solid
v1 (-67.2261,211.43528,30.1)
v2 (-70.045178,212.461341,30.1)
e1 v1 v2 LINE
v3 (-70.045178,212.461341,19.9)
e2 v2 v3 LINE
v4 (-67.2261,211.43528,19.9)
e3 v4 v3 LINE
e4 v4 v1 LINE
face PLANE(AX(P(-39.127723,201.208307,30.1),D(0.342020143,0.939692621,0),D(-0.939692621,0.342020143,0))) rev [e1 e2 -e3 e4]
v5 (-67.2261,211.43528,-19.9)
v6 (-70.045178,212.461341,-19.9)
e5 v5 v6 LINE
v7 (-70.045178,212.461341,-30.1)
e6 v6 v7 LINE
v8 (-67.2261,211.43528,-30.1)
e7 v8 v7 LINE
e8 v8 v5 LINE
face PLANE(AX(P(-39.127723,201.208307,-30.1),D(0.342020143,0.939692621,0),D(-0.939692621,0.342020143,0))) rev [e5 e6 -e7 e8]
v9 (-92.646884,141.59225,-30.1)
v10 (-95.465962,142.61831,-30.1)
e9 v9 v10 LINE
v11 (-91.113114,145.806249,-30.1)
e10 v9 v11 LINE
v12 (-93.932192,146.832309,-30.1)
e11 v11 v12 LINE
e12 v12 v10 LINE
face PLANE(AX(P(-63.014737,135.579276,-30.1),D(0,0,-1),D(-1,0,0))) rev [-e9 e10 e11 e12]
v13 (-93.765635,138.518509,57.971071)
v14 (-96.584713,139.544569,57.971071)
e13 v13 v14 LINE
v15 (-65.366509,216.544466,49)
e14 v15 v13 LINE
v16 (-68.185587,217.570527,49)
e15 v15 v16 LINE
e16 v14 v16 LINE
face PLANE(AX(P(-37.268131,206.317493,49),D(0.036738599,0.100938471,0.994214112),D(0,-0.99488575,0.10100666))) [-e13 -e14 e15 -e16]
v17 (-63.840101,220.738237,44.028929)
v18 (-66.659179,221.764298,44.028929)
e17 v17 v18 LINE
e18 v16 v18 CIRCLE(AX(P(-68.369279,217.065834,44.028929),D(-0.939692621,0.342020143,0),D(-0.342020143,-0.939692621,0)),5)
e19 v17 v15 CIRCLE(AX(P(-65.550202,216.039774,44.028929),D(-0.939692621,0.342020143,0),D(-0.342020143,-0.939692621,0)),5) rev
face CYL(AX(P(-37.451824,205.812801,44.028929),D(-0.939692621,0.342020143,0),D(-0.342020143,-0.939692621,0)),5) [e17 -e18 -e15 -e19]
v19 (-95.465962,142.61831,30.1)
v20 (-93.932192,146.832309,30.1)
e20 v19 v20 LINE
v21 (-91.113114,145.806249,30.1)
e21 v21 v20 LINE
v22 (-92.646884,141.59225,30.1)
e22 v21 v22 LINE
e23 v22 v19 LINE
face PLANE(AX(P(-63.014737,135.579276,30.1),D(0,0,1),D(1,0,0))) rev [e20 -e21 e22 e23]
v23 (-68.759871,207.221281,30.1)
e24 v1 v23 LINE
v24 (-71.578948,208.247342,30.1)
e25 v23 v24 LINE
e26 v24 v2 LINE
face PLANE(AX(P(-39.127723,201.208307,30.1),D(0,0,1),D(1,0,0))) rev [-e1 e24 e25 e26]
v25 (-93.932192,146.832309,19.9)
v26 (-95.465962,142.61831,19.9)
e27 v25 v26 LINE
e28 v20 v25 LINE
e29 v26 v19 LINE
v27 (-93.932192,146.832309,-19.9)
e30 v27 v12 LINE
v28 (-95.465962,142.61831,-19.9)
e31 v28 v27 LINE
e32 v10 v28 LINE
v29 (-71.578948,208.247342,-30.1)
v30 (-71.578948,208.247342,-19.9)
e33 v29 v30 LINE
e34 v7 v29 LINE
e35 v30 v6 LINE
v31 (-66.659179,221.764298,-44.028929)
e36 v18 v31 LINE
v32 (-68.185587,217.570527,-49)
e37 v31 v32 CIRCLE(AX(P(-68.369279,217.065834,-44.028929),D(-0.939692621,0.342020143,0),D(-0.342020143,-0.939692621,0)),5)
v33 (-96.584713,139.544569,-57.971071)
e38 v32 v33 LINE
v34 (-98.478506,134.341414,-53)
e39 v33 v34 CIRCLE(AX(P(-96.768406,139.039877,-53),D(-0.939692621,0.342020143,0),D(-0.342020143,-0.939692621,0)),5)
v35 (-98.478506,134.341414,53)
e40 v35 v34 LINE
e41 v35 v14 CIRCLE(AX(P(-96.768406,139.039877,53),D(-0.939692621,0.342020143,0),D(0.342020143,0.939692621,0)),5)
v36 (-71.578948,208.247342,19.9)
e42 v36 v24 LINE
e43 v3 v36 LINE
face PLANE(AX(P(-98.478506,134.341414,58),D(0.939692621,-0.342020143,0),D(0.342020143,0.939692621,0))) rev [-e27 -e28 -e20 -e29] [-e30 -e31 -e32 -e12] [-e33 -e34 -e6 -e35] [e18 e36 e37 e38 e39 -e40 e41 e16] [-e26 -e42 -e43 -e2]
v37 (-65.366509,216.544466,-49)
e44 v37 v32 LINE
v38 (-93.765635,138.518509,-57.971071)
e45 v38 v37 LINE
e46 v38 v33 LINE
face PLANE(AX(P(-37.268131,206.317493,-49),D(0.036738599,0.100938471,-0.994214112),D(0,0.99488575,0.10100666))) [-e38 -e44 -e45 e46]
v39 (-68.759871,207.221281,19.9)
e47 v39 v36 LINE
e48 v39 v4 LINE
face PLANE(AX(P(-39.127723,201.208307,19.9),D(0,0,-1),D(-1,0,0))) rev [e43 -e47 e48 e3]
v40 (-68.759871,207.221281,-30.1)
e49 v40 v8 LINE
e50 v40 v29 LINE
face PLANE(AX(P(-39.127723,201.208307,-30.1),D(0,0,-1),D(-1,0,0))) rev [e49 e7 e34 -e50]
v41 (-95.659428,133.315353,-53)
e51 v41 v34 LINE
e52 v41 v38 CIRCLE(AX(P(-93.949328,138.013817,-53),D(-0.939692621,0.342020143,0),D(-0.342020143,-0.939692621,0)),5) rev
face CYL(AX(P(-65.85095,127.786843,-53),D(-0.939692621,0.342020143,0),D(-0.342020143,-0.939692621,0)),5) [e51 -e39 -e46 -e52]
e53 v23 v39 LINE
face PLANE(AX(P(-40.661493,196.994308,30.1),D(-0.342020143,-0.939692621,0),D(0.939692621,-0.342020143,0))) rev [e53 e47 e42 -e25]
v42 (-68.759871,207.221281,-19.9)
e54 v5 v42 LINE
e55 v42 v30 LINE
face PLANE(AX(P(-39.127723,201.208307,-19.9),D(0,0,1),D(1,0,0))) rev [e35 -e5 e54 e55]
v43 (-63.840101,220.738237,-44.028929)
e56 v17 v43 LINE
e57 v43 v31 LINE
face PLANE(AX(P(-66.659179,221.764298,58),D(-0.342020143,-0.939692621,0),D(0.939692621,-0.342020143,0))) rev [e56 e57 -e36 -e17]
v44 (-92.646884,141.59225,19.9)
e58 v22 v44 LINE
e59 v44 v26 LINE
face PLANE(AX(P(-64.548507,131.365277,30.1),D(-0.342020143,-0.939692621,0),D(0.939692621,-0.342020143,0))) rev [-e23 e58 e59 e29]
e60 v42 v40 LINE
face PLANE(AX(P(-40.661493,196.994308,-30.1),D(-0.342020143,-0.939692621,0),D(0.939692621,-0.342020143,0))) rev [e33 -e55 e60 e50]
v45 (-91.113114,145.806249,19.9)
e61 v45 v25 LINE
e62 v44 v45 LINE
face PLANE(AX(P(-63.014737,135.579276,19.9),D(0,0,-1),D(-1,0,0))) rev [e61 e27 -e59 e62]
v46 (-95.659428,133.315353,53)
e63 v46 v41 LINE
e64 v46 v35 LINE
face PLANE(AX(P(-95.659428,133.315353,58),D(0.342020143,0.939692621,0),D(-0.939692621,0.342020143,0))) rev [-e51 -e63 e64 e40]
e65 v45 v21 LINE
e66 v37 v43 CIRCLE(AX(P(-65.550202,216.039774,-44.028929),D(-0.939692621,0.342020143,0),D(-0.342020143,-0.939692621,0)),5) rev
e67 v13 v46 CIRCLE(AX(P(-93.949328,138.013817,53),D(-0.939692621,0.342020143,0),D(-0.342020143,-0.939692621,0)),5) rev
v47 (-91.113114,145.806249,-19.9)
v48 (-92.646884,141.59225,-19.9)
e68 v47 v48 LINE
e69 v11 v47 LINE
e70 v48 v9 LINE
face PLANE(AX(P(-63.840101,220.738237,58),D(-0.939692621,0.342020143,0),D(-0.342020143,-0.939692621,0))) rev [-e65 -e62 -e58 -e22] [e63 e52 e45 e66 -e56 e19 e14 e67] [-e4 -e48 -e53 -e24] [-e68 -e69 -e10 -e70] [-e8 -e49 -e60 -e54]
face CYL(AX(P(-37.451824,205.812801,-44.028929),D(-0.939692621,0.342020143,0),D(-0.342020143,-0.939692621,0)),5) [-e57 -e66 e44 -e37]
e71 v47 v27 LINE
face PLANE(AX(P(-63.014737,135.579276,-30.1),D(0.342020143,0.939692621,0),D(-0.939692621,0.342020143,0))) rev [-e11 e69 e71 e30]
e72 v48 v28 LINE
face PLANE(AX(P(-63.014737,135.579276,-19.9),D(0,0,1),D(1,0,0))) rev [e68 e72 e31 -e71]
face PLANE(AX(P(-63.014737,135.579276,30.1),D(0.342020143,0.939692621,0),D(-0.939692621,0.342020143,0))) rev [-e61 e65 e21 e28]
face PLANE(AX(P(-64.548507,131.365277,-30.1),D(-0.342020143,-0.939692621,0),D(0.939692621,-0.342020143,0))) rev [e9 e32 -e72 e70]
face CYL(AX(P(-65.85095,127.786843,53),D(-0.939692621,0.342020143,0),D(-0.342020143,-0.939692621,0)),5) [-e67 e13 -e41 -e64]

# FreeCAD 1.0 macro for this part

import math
import FreeCAD as App
import Part
import Sketcher

V = App.Vector
Q = App.Units.Quantity


def add_polygon(sketch, points):
    """Adds a closed chain of lines whose ends are joined by coincident constraints."""
    first, n = sketch.GeometryCount, len(points)
    for a, b in zip(points, points[1:] + points[:1]):
        sketch.addGeometry(Part.LineSegment(App.Vector(*a, 0), App.Vector(*b, 0)), False)
    for i in range(n):
        sketch.addConstraint(Sketcher.Constraint("Coincident", first + i, 2, first + (i + 1) % n, 1))

doc = App.newDocument("Part")
body = doc.addObject("PartDesign::Body", "Body")

# Sketch on XY plane
sketch1 = body.newObject("Sketcher::SketchObject", "Sketch")
sketch1.AttachmentSupport = (doc.getObject("XY_Plane"), [""])
sketch1.MapMode = "FlatFace"
add_polygon(sketch1, [(-95.7, 133.3), (-63.8, 220.7), (-66.7, 221.8), (-98.5, 134.3)])  # lines 0-3
sketch1.addConstraint(Sketcher.Constraint("Perpendicular", 0, 1))
sketch1.addConstraint(Sketcher.Constraint("Perpendicular", 1, 2))
sketch1.addConstraint(Sketcher.Constraint("Perpendicular", 2, 3))
sketch1.addConstraint(Sketcher.Constraint("Angle", 0, Q("70 deg")))
sketch1.addConstraint(Sketcher.Constraint("Distance", 1, 3.0))
sketch1.addConstraint(Sketcher.Constraint("DistanceX", 0, 2, -1, 1, 63.840101))
sketch1.addConstraint(Sketcher.Constraint("Distance", 0, 93.03349))
sketch1.addConstraint(Sketcher.Constraint("DistanceY", -1, 1, 0, 2, 220.738237))
pad1 = body.newObject("PartDesign::Pad", "Pad")
pad1.Profile = sketch1
pad1.Length = 116
pad1.Midplane = True

# Sketch on an angled plane
sketch2 = body.newObject("Sketcher::SketchObject", "Sketch001")
sketch2.Placement = App.Placement(V(-130.135208, 47.365342, 0), App.Rotation(V(0, 0, 1), V(0.342020143, 0.939692621, 0), V(-0.939692621, 0.342020143, 0), "ZXY"))
add_polygon(sketch2, [(-74, 202.5), (-74, 75.6), (74, 75.6), (74, 202.5)])  # lines 0-3
sketch2.addGeometry(Part.ArcOfCircle(Part.Circle(V(-44, 180.6, 0), V(0, 0, 1), 5), math.radians(90), math.radians(174)), False)  # 4
sketch2.addGeometry(Part.LineSegment(V(-44, 185.6, 0), V(44, 185.6, 0)), False)  # 5
sketch2.addGeometry(Part.ArcOfCircle(Part.Circle(V(44, 180.6, 0), V(0, 0, 1), 5), math.radians(6), math.radians(90)), False)  # 6
sketch2.addGeometry(Part.LineSegment(V(49, 181.1, 0), V(58, 98.1, 0)), False)  # 7
sketch2.addGeometry(Part.ArcOfCircle(Part.Circle(V(53, 97.6, 0), V(0, 0, 1), 5), math.radians(-90), math.radians(6)), False)  # 8
sketch2.addGeometry(Part.LineSegment(V(53, 92.6, 0), V(-53, 92.6, 0)), False)  # 9
sketch2.addGeometry(Part.ArcOfCircle(Part.Circle(V(-53, 97.6, 0), V(0, 0, 1), 5), math.radians(174), math.radians(270)), False)  # 10
sketch2.addGeometry(Part.LineSegment(V(-58, 98.1, 0), V(-49, 181.1, 0)), False)  # 11
sketch2.addConstraint(Sketcher.Constraint("Tangent", 4, 1, 5, 1))
sketch2.addConstraint(Sketcher.Constraint("Tangent", 5, 2, 6, 2))
sketch2.addConstraint(Sketcher.Constraint("Tangent", 6, 1, 7, 1))
sketch2.addConstraint(Sketcher.Constraint("Tangent", 7, 2, 8, 2))
sketch2.addConstraint(Sketcher.Constraint("Tangent", 8, 1, 9, 1))
sketch2.addConstraint(Sketcher.Constraint("Tangent", 9, 2, 10, 2))
sketch2.addConstraint(Sketcher.Constraint("Tangent", 10, 1, 11, 1))
sketch2.addConstraint(Sketcher.Constraint("Tangent", 11, 2, 4, 2))
sketch2.addConstraint(Sketcher.Constraint("Vertical", 0))
sketch2.addConstraint(Sketcher.Constraint("Horizontal", 1))
sketch2.addConstraint(Sketcher.Constraint("Vertical", 2))
sketch2.addConstraint(Sketcher.Constraint("Horizontal", 3))
sketch2.addConstraint(Sketcher.Constraint("Horizontal", 5))
sketch2.addConstraint(Sketcher.Constraint("Horizontal", 9))
sketch2.addConstraint(Sketcher.Constraint("Equal", 4, 6))
sketch2.addConstraint(Sketcher.Constraint("Equal", 6, 8))
sketch2.addConstraint(Sketcher.Constraint("Equal", 8, 10))
sketch2.addConstraint(Sketcher.Constraint("Symmetric", 7, 2, 10, 1, -2))
sketch2.addConstraint(Sketcher.Constraint("Radius", 4, 5.0))
sketch2.addConstraint(Sketcher.Constraint("DistanceX", 9, 2, 9, 1, 106.0))
sketch2.addConstraint(Sketcher.Constraint("DistanceX", -1, 1, 6, 1, 49.0))
sketch2.addConstraint(Sketcher.Constraint("DistanceX", 1, 1, 1, 2, 147.986))
sketch2.addConstraint(Sketcher.Constraint("DistanceY", 0, 2, 0, 1, 126.948))
sketch2.addConstraint(Sketcher.Constraint("DistanceX", 0, 2, -1, 1, 73.993))
sketch2.addConstraint(Sketcher.Constraint("DistanceY", -1, 1, 0, 2, 75.601))
sketch2.addConstraint(Sketcher.Constraint("DistanceY", 8, 3, 6, 3, 83.03349))
sketch2.addConstraint(Sketcher.Constraint("DistanceY", -1, 1, 4, 3, 180.591492))
pocket1 = body.newObject("PartDesign::Pocket", "Pocket")
pocket1.Profile = sketch2
pocket1.Length = 3

# Sketch on an angled plane
sketch3 = body.newObject("Sketcher::SketchObject", "Sketch002")
sketch3.Placement = App.Placement(V(-130.135208, 47.365342, 0), App.Rotation(V(0, 0, 1), V(0.342020143, 0.939692621, 0), V(-0.939692621, 0.342020143, 0), "ZXY"))
add_polygon(sketch3, [(-30.1, 175.7), (-30.1, 171.2), (-19.9, 171.2), (-19.9, 175.7)])  # lines 0-3
sketch3.addConstraint(Sketcher.Constraint("Vertical", 0))
sketch3.addConstraint(Sketcher.Constraint("Horizontal", 1))
sketch3.addConstraint(Sketcher.Constraint("Vertical", 2))
sketch3.addConstraint(Sketcher.Constraint("Horizontal", 3))
sketch3.addConstraint(Sketcher.Constraint("DistanceX", 1, 1, 1, 2, 10.2))
sketch3.addConstraint(Sketcher.Constraint("DistanceX", 0, 2, -1, 1, 30.1))
sketch3.addConstraint(Sketcher.Constraint("DistanceY", 0, 2, 0, 1, 4.484444))
sketch3.addConstraint(Sketcher.Constraint("DistanceY", -1, 1, 0, 2, 171.207048))
pocket2 = body.newObject("PartDesign::Pocket", "Pocket001")
pocket2.Profile = sketch3
pocket2.Type = "UpToFirst"

# Sketch on an angled plane
sketch4 = body.newObject("Sketcher::SketchObject", "Sketch003")
sketch4.Placement = App.Placement(V(-130.135208, 47.365342, 0), App.Rotation(V(0, 0, 1), V(0.342020143, 0.939692621, 0), V(-0.939692621, 0.342020143, 0), "ZXY"))
add_polygon(sketch4, [(-30.1, 105.9), (-30.1, 101.4), (-19.9, 101.4), (-19.9, 105.9)])  # lines 0-3
sketch4.addConstraint(Sketcher.Constraint("Vertical", 0))
sketch4.addConstraint(Sketcher.Constraint("Horizontal", 1))
sketch4.addConstraint(Sketcher.Constraint("Vertical", 2))
sketch4.addConstraint(Sketcher.Constraint("Horizontal", 3))
sketch4.addConstraint(Sketcher.Constraint("DistanceX", 1, 1, 1, 2, 10.2))
sketch4.addConstraint(Sketcher.Constraint("DistanceX", 0, 2, -1, 1, 30.1))
sketch4.addConstraint(Sketcher.Constraint("DistanceY", 0, 2, 0, 1, 4.484444))
sketch4.addConstraint(Sketcher.Constraint("DistanceY", -1, 1, 0, 2, 101.366092))
pocket3 = body.newObject("PartDesign::Pocket", "Pocket002")
pocket3.Profile = sketch4
pocket3.Type = "UpToFirst"

# Sketch on an angled plane
sketch5 = body.newObject("Sketcher::SketchObject", "Sketch004")
sketch5.Placement = App.Placement(V(-130.135208, 47.365342, 0), App.Rotation(V(0, 0, 1), V(0.342020143, 0.939692621, 0), V(-0.939692621, 0.342020143, 0), "ZXY"))
add_polygon(sketch5, [(19.9, 175.7), (19.9, 171.2), (30.1, 171.2), (30.1, 175.7)])  # lines 0-3
sketch5.addConstraint(Sketcher.Constraint("Vertical", 0))
sketch5.addConstraint(Sketcher.Constraint("Horizontal", 1))
sketch5.addConstraint(Sketcher.Constraint("Vertical", 2))
sketch5.addConstraint(Sketcher.Constraint("Horizontal", 3))
sketch5.addConstraint(Sketcher.Constraint("DistanceX", 1, 1, 1, 2, 10.2))
sketch5.addConstraint(Sketcher.Constraint("DistanceX", -1, 1, 0, 2, 19.9))
sketch5.addConstraint(Sketcher.Constraint("DistanceY", 0, 2, 0, 1, 4.484444))
sketch5.addConstraint(Sketcher.Constraint("DistanceY", -1, 1, 0, 2, 171.207048))
pocket4 = body.newObject("PartDesign::Pocket", "Pocket003")
pocket4.Profile = sketch5
pocket4.Type = "UpToFirst"

# Sketch on an angled plane
sketch6 = body.newObject("Sketcher::SketchObject", "Sketch005")
sketch6.Placement = App.Placement(V(-130.135208, 47.365342, 0), App.Rotation(V(0, 0, 1), V(0.342020143, 0.939692621, 0), V(-0.939692621, 0.342020143, 0), "ZXY"))
add_polygon(sketch6, [(19.9, 105.9), (19.9, 101.4), (30.1, 101.4), (30.1, 105.9)])  # lines 0-3
sketch6.addConstraint(Sketcher.Constraint("Vertical", 0))
sketch6.addConstraint(Sketcher.Constraint("Horizontal", 1))
sketch6.addConstraint(Sketcher.Constraint("Vertical", 2))
sketch6.addConstraint(Sketcher.Constraint("Horizontal", 3))
sketch6.addConstraint(Sketcher.Constraint("DistanceX", 1, 1, 1, 2, 10.2))
sketch6.addConstraint(Sketcher.Constraint("DistanceX", -1, 1, 0, 2, 19.9))
sketch6.addConstraint(Sketcher.Constraint("DistanceY", 0, 2, 0, 1, 4.484444))
sketch6.addConstraint(Sketcher.Constraint("DistanceY", -1, 1, 0, 2, 101.366092))
pocket5 = body.newObject("PartDesign::Pocket", "Pocket004")
pocket5.Profile = sketch6
pocket5.Type = "UpToFirst"

doc.recompute()
